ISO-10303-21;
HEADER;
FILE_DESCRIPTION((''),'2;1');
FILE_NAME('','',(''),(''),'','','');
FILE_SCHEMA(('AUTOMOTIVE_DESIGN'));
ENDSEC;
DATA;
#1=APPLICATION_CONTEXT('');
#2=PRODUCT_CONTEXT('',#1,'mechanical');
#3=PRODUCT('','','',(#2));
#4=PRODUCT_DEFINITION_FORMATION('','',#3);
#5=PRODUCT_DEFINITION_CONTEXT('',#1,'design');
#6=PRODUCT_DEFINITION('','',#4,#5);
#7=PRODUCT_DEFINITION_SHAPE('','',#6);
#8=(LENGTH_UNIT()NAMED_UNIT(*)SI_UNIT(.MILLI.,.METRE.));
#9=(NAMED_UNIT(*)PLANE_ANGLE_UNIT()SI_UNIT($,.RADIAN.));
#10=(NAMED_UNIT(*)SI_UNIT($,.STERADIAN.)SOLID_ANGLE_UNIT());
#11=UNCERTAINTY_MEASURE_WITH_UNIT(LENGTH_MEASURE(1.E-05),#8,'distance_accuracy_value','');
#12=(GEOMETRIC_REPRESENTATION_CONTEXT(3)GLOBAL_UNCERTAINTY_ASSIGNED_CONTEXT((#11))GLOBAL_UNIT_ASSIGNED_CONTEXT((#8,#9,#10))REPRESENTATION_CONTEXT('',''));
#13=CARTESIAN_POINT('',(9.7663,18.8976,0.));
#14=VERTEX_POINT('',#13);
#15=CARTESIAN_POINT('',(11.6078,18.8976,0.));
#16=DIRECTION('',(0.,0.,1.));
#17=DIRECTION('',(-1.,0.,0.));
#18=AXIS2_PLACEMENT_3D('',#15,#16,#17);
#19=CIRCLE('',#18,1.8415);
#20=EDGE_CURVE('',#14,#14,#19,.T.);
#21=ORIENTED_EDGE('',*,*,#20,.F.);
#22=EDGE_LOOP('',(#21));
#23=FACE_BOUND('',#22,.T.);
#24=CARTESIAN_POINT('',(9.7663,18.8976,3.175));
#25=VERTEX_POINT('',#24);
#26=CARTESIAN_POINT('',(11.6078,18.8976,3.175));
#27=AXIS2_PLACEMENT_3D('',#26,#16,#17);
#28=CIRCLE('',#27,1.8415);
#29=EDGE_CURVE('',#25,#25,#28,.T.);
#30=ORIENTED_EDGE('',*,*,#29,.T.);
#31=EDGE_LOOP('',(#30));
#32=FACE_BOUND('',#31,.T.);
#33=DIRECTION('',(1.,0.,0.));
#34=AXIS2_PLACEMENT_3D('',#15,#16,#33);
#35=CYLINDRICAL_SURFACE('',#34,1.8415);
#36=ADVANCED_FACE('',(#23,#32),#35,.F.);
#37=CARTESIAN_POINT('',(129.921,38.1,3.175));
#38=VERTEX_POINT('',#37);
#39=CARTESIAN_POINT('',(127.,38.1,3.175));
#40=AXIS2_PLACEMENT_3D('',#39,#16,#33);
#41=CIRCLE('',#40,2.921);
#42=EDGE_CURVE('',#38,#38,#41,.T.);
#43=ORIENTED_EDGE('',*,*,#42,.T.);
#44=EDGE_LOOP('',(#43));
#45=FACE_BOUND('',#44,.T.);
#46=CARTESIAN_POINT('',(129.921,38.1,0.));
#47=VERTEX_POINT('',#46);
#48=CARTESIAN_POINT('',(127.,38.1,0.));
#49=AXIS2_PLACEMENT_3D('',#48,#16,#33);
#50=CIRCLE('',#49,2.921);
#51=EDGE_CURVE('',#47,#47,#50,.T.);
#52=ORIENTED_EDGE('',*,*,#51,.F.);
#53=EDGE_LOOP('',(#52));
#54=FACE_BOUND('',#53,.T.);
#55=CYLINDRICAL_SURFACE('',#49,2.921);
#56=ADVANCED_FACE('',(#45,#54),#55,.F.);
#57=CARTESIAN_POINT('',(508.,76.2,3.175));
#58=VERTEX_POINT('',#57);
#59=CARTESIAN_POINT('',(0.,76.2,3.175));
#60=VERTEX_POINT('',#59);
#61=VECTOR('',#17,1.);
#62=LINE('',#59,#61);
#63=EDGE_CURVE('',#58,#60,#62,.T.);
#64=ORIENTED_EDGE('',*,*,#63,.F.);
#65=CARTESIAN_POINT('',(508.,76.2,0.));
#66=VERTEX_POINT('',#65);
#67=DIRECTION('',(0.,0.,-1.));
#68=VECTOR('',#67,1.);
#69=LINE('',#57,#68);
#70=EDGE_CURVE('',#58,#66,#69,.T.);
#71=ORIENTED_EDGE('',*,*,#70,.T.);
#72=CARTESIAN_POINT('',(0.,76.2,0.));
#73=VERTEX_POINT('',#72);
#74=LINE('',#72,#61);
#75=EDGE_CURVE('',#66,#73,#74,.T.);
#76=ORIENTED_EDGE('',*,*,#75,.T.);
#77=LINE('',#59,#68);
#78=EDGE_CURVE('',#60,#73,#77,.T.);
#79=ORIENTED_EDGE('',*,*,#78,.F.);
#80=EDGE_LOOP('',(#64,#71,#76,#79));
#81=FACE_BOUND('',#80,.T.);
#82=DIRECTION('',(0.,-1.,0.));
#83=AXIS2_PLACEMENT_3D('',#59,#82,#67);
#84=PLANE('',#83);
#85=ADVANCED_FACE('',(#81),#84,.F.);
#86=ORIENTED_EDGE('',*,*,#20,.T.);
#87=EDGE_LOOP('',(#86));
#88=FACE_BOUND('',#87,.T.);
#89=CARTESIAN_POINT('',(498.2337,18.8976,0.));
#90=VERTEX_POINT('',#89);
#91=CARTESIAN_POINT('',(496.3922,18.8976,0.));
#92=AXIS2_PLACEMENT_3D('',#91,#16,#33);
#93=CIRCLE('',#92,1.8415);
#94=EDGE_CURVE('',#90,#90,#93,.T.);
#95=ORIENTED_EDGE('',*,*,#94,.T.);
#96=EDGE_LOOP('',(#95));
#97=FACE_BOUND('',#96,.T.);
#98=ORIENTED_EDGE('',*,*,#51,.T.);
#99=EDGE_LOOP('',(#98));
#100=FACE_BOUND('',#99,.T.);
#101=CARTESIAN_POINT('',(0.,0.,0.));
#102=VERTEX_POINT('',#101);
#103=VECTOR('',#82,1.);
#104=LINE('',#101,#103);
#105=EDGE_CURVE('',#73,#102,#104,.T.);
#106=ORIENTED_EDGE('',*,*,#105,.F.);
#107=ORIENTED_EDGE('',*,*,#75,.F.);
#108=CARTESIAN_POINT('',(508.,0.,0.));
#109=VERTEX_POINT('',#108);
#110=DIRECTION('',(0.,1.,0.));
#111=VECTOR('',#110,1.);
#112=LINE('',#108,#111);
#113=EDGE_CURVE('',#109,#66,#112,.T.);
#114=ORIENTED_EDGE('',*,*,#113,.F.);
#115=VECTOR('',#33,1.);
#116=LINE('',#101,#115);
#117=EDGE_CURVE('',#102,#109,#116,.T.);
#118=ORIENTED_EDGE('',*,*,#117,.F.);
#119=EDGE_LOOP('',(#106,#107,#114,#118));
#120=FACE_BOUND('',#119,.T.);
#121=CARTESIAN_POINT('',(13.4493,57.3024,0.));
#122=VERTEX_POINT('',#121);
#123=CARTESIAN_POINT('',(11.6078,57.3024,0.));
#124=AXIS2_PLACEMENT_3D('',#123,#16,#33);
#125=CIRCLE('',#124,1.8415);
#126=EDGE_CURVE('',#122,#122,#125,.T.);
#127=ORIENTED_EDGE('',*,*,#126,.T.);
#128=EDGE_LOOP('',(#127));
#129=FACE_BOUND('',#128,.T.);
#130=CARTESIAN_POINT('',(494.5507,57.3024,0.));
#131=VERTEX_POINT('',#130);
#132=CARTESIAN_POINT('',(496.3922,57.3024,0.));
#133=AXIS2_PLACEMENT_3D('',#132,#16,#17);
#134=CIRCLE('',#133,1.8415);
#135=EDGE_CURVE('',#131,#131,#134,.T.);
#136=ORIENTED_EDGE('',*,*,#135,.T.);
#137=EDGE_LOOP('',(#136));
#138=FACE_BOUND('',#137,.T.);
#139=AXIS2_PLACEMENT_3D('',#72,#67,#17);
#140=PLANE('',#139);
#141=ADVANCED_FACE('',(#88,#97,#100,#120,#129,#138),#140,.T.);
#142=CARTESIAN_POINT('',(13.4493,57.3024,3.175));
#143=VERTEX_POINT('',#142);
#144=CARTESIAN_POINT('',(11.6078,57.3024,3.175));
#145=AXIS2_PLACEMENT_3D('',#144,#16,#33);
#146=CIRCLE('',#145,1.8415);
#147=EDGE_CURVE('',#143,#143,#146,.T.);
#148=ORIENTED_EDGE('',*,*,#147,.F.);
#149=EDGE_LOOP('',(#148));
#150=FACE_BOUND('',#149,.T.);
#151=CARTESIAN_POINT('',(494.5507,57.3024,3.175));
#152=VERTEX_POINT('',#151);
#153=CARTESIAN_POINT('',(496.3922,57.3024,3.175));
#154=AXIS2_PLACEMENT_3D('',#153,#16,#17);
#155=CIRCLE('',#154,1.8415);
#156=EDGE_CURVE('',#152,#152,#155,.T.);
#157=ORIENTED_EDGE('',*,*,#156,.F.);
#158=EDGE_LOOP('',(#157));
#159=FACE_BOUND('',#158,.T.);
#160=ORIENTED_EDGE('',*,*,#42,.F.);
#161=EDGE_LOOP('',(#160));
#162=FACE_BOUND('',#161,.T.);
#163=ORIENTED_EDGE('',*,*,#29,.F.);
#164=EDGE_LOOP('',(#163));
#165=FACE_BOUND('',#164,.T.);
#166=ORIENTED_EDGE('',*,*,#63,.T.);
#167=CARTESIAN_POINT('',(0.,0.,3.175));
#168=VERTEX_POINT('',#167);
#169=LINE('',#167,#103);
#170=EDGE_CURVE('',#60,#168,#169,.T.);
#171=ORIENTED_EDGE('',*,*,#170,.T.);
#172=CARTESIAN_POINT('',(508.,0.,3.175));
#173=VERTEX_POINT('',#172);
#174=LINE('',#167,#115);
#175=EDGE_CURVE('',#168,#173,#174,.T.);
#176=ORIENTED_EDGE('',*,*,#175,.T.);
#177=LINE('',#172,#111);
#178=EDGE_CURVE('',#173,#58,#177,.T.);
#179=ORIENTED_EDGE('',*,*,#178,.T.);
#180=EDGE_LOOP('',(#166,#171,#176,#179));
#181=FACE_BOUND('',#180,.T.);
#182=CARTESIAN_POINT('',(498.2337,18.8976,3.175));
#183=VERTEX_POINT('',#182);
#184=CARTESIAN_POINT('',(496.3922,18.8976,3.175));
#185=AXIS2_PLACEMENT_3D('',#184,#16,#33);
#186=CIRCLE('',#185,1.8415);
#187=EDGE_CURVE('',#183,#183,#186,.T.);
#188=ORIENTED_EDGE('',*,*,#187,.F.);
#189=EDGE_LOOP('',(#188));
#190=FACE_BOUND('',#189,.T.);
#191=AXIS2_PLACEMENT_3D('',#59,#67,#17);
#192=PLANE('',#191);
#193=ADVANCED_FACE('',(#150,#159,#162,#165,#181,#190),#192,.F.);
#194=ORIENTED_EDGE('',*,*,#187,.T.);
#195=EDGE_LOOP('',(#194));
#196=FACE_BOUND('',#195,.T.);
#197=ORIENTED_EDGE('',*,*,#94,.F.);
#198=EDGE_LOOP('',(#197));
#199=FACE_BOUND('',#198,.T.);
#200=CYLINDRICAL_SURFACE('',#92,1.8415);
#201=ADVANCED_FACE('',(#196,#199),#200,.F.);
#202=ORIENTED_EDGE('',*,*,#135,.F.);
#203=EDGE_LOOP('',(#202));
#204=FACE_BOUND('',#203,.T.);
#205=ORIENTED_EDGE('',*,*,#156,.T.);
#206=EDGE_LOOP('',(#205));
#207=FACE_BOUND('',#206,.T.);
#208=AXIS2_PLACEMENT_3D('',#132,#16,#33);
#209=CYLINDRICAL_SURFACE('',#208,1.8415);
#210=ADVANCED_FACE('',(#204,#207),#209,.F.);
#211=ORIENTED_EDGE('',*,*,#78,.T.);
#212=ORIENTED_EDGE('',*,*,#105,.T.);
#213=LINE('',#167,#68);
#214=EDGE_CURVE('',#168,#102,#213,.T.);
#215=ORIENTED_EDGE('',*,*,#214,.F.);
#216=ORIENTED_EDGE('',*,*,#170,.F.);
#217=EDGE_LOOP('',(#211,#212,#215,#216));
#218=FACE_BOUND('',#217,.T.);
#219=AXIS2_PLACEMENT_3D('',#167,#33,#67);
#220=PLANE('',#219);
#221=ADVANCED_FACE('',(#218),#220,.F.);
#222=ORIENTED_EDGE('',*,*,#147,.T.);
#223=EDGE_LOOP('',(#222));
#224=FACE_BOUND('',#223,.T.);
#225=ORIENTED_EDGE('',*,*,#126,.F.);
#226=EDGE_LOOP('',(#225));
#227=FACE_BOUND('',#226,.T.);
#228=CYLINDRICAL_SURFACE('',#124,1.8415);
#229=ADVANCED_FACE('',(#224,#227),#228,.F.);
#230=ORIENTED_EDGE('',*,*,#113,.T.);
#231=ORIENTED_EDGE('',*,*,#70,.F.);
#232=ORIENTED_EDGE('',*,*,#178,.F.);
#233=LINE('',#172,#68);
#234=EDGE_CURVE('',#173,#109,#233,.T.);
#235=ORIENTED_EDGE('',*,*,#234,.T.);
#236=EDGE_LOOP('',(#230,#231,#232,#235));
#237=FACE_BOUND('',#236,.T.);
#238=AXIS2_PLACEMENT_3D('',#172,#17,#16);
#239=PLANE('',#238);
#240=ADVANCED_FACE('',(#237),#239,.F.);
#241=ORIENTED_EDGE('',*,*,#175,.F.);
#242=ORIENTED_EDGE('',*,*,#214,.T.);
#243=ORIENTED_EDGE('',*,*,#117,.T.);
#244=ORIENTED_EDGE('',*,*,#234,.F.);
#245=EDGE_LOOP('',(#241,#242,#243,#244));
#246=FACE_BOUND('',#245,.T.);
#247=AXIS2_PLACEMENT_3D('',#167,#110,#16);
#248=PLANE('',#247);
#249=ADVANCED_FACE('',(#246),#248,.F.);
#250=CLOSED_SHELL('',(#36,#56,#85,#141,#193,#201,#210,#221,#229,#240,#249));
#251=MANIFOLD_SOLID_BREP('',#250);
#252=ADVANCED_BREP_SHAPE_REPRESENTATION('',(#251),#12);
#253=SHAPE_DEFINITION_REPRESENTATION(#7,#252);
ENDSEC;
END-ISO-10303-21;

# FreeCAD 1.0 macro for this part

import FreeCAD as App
import Part
import Sketcher
from FreeCAD import Vector
Q = App.Units.Quantity


def add_polygon(sketch, points):
    """Adds a closed chain of lines whose ends are joined by coincident constraints."""
    first, n = sketch.GeometryCount, len(points)
    for a, b in zip(points, points[1:] + points[:1]):
        sketch.addGeometry(Part.LineSegment(App.Vector(*a, 0), App.Vector(*b, 0)), False)
    for i in range(n):
        sketch.addConstraint(Sketcher.Constraint("Coincident", first + i, 2, first + (i + 1) % n, 1))

doc = App.newDocument("Part")
body = doc.addObject("PartDesign::Body", "Body")

sketch1 = body.newObject("Sketcher::SketchObject", "Sketch")
sketch1.AttachmentSupport = (doc.getObject("XY_Plane"), [""])
sketch1.MapMode = "FlatFace"
add_polygon(sketch1, [(0, 76), (0, 0), (508, 0), (508, 76)])
sketch1.addConstraint(Sketcher.Constraint("Vertical", 0))
sketch1.addConstraint(Sketcher.Constraint("Horizontal", 1))
sketch1.addConstraint(Sketcher.Constraint("Vertical", 2))
sketch1.addConstraint(Sketcher.Constraint("Horizontal", 3))
sketch1.addConstraint(Sketcher.Constraint("Coincident", 0, 2, -1, 1))
sketch1.addConstraint(Sketcher.Constraint("DistanceX", 1, 1, 1, 2, Q("20 in")))
sketch1.addConstraint(Sketcher.Constraint("DistanceY", 0, 2, 0, 1, Q("3 in")))
pad1 = body.newObject("PartDesign::Pad", "Pad")
pad1.Profile = sketch1
pad1.Length = Q("0.125 in")

sketch2 = body.newObject("Sketcher::SketchObject", "Sketch001")
sketch2.AttachmentSupport = (doc.getObject("XY_Plane"), [""])
sketch2.MapMode = "FlatFace"
sketch2.AttachmentOffset = App.Placement(Vector(0, 0, 0.125 * 25.4), App.Rotation())
sketch2.addGeometry(Part.Circle(Vector(127, 38.1, 0), Vector(0, 0, 1), 2.9), False)
sketch2.addConstraint(Sketcher.Constraint("Diameter", 0, Q("0.23 in")))
sketch2.addConstraint(Sketcher.Constraint("DistanceX", -1, 1, 0, 3, Q("5 in")))
sketch2.addConstraint(Sketcher.Constraint("DistanceY", -1, 1, 0, 3, Q("1.5 in")))
pocket1 = body.newObject("PartDesign::Pocket", "Pocket")
pocket1.Profile = sketch2
pocket1.Type = "ThroughAll"

sketch3 = body.newObject("Sketcher::SketchObject", "Sketch002")
sketch3.AttachmentSupport = (doc.getObject("XY_Plane"), [""])
sketch3.MapMode = "FlatFace"
sketch3.AttachmentOffset = App.Placement(Vector(0, 0, 0.125 * 25.4), App.Rotation())
sketch3.addGeometry(Part.Circle(Vector(11.6, 57.3, 0), Vector(0, 0, 1), 1.8), False)
sketch3.addGeometry(Part.Circle(Vector(11.6, 18.9, 0), Vector(0, 0, 1), 1.8), False)
sketch3.addGeometry(Part.Circle(Vector(496.4, 18.9, 0), Vector(0, 0, 1), 1.8), False)
sketch3.addGeometry(Part.Circle(Vector(496.4, 57.3, 0), Vector(0, 0, 1), 1.8), False)
sketch3.addConstraint(Sketcher.Constraint("Equal", 0, 1))
sketch3.addConstraint(Sketcher.Constraint("Equal", 1, 2))
sketch3.addConstraint(Sketcher.Constraint("Equal", 2, 3))
sketch3.addConstraint(Sketcher.Constraint("Horizontal", 1, 3, 2, 3))
sketch3.addConstraint(Sketcher.Constraint("Horizontal", 0, 3, 3, 3))
sketch3.addConstraint(Sketcher.Constraint("Vertical", 0, 3, 1, 3))
sketch3.addConstraint(Sketcher.Constraint("Vertical", 2, 3, 3, 3))
sketch3.addConstraint(Sketcher.Constraint("Diameter", 0, Q("0.145 in")))
sketch3.addConstraint(Sketcher.Constraint("DistanceX", -1, 1, 0, 3, Q("0.457 in")))
sketch3.addConstraint(Sketcher.Constraint("DistanceY", -1, 1, 0, 3, Q("2.256 in")))
sketch3.addConstraint(Sketcher.Constraint("DistanceY", -1, 1, 1, 3, Q("0.744 in")))
sketch3.addConstraint(Sketcher.Constraint("DistanceX", -1, 1, 2, 3, Q("19.543 in")))
pocket2 = body.newObject("PartDesign::Pocket", "Pocket001")
pocket2.Profile = sketch3
pocket2.Type = "ThroughAll"

doc.recompute()
